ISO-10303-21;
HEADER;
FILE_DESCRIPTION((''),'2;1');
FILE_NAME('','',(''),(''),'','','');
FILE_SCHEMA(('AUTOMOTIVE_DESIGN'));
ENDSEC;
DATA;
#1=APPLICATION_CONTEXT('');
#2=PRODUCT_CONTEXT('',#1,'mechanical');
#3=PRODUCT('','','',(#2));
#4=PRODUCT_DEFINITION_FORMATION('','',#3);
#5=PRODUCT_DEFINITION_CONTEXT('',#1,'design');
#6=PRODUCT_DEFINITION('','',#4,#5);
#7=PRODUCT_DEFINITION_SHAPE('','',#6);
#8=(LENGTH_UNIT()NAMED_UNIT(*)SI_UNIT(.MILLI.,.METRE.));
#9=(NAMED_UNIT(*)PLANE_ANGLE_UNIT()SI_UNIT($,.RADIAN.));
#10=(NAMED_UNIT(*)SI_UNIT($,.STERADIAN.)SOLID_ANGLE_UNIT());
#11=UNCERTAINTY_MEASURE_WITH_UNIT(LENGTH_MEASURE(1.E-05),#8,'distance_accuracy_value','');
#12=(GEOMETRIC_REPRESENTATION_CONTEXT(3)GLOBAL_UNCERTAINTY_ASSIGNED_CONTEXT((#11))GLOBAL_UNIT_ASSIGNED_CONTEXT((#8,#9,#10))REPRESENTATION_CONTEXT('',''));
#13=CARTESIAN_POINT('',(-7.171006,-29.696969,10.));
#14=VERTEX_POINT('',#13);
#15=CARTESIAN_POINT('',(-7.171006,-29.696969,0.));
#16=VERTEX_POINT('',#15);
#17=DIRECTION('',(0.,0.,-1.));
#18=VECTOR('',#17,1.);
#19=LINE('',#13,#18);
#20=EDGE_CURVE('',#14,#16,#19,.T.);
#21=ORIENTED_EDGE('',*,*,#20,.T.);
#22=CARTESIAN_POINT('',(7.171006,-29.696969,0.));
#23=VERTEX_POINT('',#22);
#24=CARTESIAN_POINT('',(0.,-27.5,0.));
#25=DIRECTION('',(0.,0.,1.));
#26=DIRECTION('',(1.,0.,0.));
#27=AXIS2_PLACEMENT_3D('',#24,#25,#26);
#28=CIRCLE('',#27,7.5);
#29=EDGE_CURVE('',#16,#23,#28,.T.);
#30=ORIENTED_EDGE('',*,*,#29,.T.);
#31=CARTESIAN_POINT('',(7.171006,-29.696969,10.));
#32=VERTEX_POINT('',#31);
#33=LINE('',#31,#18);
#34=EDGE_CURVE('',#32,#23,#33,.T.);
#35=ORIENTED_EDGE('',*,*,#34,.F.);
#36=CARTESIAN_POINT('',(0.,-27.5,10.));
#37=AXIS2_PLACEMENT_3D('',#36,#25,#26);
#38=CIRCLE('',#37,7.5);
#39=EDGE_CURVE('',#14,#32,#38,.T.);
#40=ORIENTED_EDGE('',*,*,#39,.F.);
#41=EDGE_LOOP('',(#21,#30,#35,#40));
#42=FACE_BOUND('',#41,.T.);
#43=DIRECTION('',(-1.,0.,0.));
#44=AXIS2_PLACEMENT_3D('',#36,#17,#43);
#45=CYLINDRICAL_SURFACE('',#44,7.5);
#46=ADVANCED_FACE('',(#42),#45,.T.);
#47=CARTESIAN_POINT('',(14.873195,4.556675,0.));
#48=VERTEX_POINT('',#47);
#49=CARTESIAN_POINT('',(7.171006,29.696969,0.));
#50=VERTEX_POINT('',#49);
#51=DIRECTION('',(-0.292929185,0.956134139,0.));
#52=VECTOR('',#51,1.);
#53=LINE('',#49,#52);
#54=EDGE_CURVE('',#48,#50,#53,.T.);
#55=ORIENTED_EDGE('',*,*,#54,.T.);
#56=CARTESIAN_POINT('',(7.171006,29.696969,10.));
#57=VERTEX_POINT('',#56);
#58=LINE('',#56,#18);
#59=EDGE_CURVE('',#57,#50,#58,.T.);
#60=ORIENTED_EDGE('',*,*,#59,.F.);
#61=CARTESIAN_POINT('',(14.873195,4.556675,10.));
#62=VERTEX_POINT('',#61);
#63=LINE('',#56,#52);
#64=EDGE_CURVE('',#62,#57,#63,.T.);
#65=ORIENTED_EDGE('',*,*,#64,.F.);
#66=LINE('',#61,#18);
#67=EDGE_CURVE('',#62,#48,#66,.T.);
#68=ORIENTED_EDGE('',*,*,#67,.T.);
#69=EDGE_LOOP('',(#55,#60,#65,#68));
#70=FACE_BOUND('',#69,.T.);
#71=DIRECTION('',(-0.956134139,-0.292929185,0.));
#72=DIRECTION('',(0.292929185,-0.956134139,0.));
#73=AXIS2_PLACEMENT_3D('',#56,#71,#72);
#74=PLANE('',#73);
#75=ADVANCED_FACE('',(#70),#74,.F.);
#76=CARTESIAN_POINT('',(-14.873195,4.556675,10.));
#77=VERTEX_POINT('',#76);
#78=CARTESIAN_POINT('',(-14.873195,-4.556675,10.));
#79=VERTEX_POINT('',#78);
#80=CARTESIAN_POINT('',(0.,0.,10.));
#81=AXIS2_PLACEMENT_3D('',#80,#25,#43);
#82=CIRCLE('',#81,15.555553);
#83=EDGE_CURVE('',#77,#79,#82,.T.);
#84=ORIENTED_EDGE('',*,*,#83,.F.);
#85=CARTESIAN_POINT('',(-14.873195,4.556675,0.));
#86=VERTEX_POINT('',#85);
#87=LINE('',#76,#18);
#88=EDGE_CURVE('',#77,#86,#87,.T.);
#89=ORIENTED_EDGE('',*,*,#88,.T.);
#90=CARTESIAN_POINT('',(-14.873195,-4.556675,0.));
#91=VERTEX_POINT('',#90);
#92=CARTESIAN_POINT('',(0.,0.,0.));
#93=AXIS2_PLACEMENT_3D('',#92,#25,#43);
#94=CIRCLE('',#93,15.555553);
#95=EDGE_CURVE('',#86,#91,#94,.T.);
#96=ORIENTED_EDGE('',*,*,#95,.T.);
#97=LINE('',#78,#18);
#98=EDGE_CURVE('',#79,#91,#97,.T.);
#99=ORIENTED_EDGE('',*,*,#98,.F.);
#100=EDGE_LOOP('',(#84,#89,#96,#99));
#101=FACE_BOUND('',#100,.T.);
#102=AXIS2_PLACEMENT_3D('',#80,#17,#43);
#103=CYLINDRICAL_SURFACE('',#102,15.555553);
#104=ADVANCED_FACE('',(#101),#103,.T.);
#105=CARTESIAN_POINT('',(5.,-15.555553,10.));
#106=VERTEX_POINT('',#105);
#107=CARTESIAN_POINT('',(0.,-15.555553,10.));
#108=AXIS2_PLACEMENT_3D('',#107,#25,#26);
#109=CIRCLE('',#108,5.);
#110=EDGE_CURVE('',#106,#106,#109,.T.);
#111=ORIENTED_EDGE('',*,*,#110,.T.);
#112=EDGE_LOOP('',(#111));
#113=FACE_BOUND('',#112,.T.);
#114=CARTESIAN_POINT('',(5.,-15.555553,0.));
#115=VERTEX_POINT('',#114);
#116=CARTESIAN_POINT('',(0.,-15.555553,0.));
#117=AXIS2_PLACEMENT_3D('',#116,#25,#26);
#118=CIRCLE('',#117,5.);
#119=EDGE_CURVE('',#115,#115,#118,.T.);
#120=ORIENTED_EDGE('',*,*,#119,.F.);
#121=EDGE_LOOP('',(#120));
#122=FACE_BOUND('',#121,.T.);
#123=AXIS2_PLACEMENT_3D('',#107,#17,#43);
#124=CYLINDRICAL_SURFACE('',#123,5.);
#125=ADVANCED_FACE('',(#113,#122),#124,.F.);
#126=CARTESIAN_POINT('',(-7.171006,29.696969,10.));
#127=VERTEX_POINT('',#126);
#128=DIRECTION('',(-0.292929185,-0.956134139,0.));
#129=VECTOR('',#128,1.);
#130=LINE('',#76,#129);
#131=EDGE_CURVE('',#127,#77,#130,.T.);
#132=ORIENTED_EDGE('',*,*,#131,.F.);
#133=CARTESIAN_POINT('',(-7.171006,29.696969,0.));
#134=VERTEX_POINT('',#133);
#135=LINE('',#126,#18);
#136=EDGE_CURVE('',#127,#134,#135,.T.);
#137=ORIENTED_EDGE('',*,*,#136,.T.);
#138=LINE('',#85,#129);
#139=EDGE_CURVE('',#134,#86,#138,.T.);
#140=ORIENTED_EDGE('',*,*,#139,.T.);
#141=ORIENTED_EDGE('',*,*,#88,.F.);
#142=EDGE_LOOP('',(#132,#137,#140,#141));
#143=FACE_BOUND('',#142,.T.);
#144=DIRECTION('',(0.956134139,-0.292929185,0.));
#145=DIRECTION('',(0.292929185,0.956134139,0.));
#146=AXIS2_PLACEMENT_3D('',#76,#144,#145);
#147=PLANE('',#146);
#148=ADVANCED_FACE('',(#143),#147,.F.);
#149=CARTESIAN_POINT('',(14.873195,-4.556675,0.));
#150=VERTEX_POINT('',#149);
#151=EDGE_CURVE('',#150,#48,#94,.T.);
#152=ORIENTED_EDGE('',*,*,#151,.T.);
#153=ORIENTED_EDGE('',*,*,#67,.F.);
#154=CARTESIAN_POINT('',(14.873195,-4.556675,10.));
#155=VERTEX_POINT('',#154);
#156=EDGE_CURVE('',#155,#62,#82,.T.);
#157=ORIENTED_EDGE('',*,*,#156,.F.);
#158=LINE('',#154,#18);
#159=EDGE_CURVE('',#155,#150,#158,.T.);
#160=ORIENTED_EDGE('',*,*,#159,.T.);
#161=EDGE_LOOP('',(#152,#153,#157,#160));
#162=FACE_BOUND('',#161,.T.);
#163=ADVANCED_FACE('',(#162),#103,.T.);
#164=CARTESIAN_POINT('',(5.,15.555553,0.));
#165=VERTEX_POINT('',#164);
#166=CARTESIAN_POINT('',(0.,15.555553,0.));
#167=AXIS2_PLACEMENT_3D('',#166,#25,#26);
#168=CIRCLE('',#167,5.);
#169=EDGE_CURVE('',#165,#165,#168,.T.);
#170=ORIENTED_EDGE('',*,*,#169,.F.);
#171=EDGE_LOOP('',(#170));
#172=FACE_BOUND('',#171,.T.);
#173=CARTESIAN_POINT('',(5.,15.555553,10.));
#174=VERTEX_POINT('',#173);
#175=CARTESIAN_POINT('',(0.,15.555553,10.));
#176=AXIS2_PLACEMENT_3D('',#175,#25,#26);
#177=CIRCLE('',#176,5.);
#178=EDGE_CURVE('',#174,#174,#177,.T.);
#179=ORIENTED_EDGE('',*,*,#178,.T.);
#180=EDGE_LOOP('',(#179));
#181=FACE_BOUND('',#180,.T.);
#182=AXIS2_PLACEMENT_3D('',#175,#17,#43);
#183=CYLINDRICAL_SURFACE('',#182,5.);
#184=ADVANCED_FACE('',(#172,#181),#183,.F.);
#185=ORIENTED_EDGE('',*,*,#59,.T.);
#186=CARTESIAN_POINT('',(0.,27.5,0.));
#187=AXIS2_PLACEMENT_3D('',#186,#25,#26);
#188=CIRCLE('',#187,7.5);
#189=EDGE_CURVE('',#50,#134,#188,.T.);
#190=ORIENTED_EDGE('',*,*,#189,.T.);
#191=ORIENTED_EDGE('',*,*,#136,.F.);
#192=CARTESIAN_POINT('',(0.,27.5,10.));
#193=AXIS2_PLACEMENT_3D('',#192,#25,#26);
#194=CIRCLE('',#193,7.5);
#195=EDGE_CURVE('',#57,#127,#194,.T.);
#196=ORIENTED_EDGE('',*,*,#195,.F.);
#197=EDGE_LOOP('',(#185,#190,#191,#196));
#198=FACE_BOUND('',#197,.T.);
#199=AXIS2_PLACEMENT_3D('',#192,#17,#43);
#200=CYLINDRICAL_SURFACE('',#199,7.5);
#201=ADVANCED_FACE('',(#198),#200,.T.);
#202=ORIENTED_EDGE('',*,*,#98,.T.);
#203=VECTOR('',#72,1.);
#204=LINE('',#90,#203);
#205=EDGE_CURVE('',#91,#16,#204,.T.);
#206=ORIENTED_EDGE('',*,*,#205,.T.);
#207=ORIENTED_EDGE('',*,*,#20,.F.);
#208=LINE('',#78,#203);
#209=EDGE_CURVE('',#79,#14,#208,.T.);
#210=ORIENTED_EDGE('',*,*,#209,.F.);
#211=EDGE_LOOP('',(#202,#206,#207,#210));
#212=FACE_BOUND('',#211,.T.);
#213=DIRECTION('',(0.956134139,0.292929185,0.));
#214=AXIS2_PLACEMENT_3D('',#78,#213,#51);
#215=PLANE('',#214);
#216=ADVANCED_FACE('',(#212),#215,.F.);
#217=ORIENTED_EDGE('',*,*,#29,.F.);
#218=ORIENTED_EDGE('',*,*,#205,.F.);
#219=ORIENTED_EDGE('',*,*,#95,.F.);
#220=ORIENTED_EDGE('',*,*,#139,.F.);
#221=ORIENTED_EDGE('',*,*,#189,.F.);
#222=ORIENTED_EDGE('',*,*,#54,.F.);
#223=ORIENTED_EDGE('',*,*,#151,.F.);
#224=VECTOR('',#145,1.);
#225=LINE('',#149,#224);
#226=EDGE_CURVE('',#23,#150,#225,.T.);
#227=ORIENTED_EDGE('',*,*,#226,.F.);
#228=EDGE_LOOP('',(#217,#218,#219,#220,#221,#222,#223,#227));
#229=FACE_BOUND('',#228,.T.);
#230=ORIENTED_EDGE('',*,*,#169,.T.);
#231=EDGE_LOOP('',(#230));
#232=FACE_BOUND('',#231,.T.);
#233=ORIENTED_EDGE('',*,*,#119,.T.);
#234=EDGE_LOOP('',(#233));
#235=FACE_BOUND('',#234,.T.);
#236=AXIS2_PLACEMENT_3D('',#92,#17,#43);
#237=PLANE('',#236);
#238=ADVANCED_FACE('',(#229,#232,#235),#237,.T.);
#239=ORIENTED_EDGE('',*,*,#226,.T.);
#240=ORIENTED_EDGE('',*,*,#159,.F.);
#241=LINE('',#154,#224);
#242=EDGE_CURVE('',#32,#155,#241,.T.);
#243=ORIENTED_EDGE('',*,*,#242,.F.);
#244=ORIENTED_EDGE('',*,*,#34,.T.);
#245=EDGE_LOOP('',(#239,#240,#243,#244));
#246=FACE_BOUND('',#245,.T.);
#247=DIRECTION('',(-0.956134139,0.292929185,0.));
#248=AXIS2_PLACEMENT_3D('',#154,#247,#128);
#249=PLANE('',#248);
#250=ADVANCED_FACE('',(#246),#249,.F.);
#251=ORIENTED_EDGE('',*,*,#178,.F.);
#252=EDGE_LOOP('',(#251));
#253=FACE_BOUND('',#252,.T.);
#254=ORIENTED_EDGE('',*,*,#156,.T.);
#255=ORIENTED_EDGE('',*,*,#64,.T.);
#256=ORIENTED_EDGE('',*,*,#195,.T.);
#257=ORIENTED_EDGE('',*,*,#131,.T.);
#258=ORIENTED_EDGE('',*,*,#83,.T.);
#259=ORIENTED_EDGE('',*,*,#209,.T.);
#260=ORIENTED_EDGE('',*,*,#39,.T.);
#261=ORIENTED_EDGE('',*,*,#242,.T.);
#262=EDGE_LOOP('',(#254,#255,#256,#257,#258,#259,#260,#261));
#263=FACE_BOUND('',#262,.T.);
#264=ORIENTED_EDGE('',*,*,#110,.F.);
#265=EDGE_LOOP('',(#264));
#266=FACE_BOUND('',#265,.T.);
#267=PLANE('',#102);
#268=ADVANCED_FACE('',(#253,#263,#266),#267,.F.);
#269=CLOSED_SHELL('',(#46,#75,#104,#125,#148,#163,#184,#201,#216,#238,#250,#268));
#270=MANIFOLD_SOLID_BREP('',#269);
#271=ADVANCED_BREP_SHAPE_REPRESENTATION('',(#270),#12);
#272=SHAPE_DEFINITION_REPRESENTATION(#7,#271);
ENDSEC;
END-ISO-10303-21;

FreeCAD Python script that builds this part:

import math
import FreeCAD as App
import Part
import Sketcher

V = App.Vector

doc = App.newDocument("Part")
body = doc.addObject("PartDesign::Body", "Body")

sketch1 = body.newObject("Sketcher::SketchObject", "Sketch")
sketch1.AttachmentSupport = (doc.getObject("XY_Plane"), [""])
sketch1.MapMode = "FlatFace"
sketch1.addGeometry([
    Part.LineSegment(V(-7, 30, 0), V(-15, 5, 0)),
    Part.ArcOfCircle(Part.Circle(V(0, 0, 0), V(0, 0, 1), 16), math.radians(163), math.radians(197)),
    Part.LineSegment(V(-15, -5, 0), V(-7, -30, 0)),
    Part.ArcOfCircle(Part.Circle(V(0, -28, 0), V(0, 0, 1), 8), math.radians(-163), math.radians(-17)),
    Part.LineSegment(V(7, -30, 0), V(15, -5, 0)),
    Part.ArcOfCircle(Part.Circle(V(0, 0, 0), V(0, 0, 1), 16), math.radians(-17), math.radians(17)),
    Part.LineSegment(V(15, 5, 0), V(7, 30, 0)),
    Part.ArcOfCircle(Part.Circle(V(0, 28, 0), V(0, 0, 1), 8), math.radians(17), math.radians(163)),
    Part.Circle(V(0, -16, 0), V(0, 0, 1), 5),
    Part.Circle(V(0, 16, 0), V(0, 0, 1), 5),
], False)
sketch1.addConstraint([
    Sketcher.Constraint("Tangent", 0, 2, 1, 1),
    Sketcher.Constraint("Tangent", 1, 2, 2, 1),
    Sketcher.Constraint("Tangent", 2, 2, 3, 1),
    Sketcher.Constraint("Tangent", 3, 2, 4, 1),
    Sketcher.Constraint("Tangent", 4, 2, 5, 1),
    Sketcher.Constraint("Tangent", 5, 2, 6, 1),
    Sketcher.Constraint("Tangent", 6, 2, 7, 1),
    Sketcher.Constraint("Tangent", 7, 2, 0, 1),
    Sketcher.Constraint("Coincident", 1, 3, -1, 1),
    Sketcher.Constraint("Coincident", 5, 3, -1, 1),
    Sketcher.Constraint("Equal", 1, 5),
    Sketcher.Constraint("Equal", 3, 7),
    Sketcher.Constraint("Equal", 8, 9),
    Sketcher.Constraint("Symmetric", 3, 3, 7, 3, -1, 1),
    Sketcher.Constraint("Symmetric", 8, 3, 9, 3, -1, 1),
    Sketcher.Constraint("PointOnObject", 3, 3, -2),
    Sketcher.Constraint("PointOnObject", 8, 3, -2),
    Sketcher.Constraint("Diameter", 8, 10.0),
    Sketcher.Constraint("Radius", 3, 7.5),
    Sketcher.Constraint("DistanceY", 3, 3, 7, 3, 55.0),
    Sketcher.Constraint("Radius", 1, 15.555553),
    Sketcher.Constraint("DistanceY", 8, 3, -1, 1, 15.555553),
])
pad1 = body.newObject("PartDesign::Pad", "Pad")
pad1.Profile = sketch1
pad1.Length = 10

doc.recompute()
